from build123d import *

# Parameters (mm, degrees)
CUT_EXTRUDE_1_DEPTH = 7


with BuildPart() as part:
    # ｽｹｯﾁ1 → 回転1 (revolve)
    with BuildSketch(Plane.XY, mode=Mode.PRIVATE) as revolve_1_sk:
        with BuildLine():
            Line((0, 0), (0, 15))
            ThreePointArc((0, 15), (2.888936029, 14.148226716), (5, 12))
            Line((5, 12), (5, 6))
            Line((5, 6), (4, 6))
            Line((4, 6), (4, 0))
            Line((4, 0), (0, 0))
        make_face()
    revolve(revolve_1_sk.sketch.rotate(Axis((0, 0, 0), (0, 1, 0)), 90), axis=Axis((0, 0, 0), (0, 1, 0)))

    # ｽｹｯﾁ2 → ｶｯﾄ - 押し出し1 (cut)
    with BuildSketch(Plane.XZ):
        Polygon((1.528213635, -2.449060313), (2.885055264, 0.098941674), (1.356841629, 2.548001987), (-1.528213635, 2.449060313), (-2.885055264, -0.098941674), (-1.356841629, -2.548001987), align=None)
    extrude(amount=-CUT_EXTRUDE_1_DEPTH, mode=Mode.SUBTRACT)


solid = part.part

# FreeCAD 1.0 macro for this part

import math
import FreeCAD as App
import Part
import Sketcher


def add_polygon(sketch, points):
    """Adds a closed chain of lines whose ends are joined by coincident constraints."""
    first, n = sketch.GeometryCount, len(points)
    for a, b in zip(points, points[1:] + points[:1]):
        sketch.addGeometry(Part.LineSegment(App.Vector(*a, 0), App.Vector(*b, 0)), False)
    for i in range(n):
        sketch.addConstraint(Sketcher.Constraint("Coincident", first + i, 2, first + (i + 1) % n, 1))

doc = App.newDocument("Part")
body = doc.addObject("PartDesign::Body", "Body")

# Sketch on XY plane
sketch1 = body.newObject("Sketcher::SketchObject", "Sketch")
sketch1.AttachmentSupport = (doc.getObject("XY_Plane"), [""])
sketch1.MapMode = "FlatFace"
sketch1.addGeometry([
    Part.LineSegment(App.Vector(0, 15, 0), App.Vector(0, 0, 0)),  # 0
    Part.LineSegment(App.Vector(0, 0, 0), App.Vector(4, 0, 0)),  # 1
    Part.LineSegment(App.Vector(4, 0, 0), App.Vector(4, 6, 0)),  # 2
    Part.LineSegment(App.Vector(4, 6, 0), App.Vector(5, 6, 0)),  # 3
    Part.LineSegment(App.Vector(5, 6, 0), App.Vector(5, 12, 0)),  # 4
    Part.ArcOfCircle(Part.Circle(App.Vector(-0.2, 9, 0), App.Vector(0, 0, 1), 6), math.radians(30), math.radians(88)),  # 5
], False)
sketch1.addConstraint([
    Sketcher.Constraint("Coincident", 0, 2, 1, 1),
    Sketcher.Constraint("Coincident", 1, 2, 2, 1),
    Sketcher.Constraint("Coincident", 2, 2, 3, 1),
    Sketcher.Constraint("Coincident", 3, 2, 4, 1),
    Sketcher.Constraint("Coincident", 4, 2, 5, 1),
    Sketcher.Constraint("Coincident", 5, 2, 0, 1),
    Sketcher.Constraint("Vertical", 0),
    Sketcher.Constraint("Horizontal", 1),
    Sketcher.Constraint("Vertical", 2),
    Sketcher.Constraint("Horizontal", 3),
    Sketcher.Constraint("Vertical", 4),
    Sketcher.Constraint("Coincident", 0, 2, -1, 1),
    Sketcher.Constraint("Equal", 2, 4),
    Sketcher.Constraint("Radius", 5, 6.0),
    Sketcher.Constraint("DistanceX", 1, 1, 1, 2, 4.0),
    Sketcher.Constraint("DistanceX", 3, 1, 3, 2, 1.0),
    Sketcher.Constraint("DistanceY", 0, 2, 0, 1, 15.0),
    Sketcher.Constraint("DistanceY", 2, 1, 2, 2, 6.0),
])
revolution = body.newObject("PartDesign::Revolution", "Revolution")
revolution.Profile = sketch1
revolution.ReferenceAxis = (sketch1, ["V_Axis"])
revolution.Angle = 360

# Sketch on XZ plane
sketch2 = body.newObject("Sketcher::SketchObject", "Sketch001")
sketch2.AttachmentSupport = (doc.getObject("XZ_Plane"), [""])
sketch2.MapMode = "FlatFace"
add_polygon(sketch2, [(1.5, -2.4), (2.9, 0.1), (1.4, 2.5), (-1.5, 2.4), (-2.9, -0.1), (-1.4, -2.5)])  # lines 0-5
sketch2.addConstraint([
    Sketcher.Constraint("Symmetric", 0, 2, 3, 2, -1, 1),
    Sketcher.Constraint("Symmetric", 1, 2, 4, 2, -1, 1),
    Sketcher.Constraint("Symmetric", 2, 2, 5, 2, -1, 1),
    Sketcher.Constraint("Equal", 0, 1),
    Sketcher.Constraint("Equal", 1, 2),
    Sketcher.Constraint("DistanceY", -1, 1, 1, 2, 2.548002),
    Sketcher.Constraint("DistanceY", 3, 2, 2, 2, 2.548002),
    Sketcher.Constraint("Distance", 0, 2.886751),
    Sketcher.Constraint("DistanceY", -1, 1, 0, 2, 0.098942),
])
pocket1 = body.newObject("PartDesign::Pocket", "Pocket")
pocket1.Profile = sketch2
pocket1.Length = 7

doc.recompute()
